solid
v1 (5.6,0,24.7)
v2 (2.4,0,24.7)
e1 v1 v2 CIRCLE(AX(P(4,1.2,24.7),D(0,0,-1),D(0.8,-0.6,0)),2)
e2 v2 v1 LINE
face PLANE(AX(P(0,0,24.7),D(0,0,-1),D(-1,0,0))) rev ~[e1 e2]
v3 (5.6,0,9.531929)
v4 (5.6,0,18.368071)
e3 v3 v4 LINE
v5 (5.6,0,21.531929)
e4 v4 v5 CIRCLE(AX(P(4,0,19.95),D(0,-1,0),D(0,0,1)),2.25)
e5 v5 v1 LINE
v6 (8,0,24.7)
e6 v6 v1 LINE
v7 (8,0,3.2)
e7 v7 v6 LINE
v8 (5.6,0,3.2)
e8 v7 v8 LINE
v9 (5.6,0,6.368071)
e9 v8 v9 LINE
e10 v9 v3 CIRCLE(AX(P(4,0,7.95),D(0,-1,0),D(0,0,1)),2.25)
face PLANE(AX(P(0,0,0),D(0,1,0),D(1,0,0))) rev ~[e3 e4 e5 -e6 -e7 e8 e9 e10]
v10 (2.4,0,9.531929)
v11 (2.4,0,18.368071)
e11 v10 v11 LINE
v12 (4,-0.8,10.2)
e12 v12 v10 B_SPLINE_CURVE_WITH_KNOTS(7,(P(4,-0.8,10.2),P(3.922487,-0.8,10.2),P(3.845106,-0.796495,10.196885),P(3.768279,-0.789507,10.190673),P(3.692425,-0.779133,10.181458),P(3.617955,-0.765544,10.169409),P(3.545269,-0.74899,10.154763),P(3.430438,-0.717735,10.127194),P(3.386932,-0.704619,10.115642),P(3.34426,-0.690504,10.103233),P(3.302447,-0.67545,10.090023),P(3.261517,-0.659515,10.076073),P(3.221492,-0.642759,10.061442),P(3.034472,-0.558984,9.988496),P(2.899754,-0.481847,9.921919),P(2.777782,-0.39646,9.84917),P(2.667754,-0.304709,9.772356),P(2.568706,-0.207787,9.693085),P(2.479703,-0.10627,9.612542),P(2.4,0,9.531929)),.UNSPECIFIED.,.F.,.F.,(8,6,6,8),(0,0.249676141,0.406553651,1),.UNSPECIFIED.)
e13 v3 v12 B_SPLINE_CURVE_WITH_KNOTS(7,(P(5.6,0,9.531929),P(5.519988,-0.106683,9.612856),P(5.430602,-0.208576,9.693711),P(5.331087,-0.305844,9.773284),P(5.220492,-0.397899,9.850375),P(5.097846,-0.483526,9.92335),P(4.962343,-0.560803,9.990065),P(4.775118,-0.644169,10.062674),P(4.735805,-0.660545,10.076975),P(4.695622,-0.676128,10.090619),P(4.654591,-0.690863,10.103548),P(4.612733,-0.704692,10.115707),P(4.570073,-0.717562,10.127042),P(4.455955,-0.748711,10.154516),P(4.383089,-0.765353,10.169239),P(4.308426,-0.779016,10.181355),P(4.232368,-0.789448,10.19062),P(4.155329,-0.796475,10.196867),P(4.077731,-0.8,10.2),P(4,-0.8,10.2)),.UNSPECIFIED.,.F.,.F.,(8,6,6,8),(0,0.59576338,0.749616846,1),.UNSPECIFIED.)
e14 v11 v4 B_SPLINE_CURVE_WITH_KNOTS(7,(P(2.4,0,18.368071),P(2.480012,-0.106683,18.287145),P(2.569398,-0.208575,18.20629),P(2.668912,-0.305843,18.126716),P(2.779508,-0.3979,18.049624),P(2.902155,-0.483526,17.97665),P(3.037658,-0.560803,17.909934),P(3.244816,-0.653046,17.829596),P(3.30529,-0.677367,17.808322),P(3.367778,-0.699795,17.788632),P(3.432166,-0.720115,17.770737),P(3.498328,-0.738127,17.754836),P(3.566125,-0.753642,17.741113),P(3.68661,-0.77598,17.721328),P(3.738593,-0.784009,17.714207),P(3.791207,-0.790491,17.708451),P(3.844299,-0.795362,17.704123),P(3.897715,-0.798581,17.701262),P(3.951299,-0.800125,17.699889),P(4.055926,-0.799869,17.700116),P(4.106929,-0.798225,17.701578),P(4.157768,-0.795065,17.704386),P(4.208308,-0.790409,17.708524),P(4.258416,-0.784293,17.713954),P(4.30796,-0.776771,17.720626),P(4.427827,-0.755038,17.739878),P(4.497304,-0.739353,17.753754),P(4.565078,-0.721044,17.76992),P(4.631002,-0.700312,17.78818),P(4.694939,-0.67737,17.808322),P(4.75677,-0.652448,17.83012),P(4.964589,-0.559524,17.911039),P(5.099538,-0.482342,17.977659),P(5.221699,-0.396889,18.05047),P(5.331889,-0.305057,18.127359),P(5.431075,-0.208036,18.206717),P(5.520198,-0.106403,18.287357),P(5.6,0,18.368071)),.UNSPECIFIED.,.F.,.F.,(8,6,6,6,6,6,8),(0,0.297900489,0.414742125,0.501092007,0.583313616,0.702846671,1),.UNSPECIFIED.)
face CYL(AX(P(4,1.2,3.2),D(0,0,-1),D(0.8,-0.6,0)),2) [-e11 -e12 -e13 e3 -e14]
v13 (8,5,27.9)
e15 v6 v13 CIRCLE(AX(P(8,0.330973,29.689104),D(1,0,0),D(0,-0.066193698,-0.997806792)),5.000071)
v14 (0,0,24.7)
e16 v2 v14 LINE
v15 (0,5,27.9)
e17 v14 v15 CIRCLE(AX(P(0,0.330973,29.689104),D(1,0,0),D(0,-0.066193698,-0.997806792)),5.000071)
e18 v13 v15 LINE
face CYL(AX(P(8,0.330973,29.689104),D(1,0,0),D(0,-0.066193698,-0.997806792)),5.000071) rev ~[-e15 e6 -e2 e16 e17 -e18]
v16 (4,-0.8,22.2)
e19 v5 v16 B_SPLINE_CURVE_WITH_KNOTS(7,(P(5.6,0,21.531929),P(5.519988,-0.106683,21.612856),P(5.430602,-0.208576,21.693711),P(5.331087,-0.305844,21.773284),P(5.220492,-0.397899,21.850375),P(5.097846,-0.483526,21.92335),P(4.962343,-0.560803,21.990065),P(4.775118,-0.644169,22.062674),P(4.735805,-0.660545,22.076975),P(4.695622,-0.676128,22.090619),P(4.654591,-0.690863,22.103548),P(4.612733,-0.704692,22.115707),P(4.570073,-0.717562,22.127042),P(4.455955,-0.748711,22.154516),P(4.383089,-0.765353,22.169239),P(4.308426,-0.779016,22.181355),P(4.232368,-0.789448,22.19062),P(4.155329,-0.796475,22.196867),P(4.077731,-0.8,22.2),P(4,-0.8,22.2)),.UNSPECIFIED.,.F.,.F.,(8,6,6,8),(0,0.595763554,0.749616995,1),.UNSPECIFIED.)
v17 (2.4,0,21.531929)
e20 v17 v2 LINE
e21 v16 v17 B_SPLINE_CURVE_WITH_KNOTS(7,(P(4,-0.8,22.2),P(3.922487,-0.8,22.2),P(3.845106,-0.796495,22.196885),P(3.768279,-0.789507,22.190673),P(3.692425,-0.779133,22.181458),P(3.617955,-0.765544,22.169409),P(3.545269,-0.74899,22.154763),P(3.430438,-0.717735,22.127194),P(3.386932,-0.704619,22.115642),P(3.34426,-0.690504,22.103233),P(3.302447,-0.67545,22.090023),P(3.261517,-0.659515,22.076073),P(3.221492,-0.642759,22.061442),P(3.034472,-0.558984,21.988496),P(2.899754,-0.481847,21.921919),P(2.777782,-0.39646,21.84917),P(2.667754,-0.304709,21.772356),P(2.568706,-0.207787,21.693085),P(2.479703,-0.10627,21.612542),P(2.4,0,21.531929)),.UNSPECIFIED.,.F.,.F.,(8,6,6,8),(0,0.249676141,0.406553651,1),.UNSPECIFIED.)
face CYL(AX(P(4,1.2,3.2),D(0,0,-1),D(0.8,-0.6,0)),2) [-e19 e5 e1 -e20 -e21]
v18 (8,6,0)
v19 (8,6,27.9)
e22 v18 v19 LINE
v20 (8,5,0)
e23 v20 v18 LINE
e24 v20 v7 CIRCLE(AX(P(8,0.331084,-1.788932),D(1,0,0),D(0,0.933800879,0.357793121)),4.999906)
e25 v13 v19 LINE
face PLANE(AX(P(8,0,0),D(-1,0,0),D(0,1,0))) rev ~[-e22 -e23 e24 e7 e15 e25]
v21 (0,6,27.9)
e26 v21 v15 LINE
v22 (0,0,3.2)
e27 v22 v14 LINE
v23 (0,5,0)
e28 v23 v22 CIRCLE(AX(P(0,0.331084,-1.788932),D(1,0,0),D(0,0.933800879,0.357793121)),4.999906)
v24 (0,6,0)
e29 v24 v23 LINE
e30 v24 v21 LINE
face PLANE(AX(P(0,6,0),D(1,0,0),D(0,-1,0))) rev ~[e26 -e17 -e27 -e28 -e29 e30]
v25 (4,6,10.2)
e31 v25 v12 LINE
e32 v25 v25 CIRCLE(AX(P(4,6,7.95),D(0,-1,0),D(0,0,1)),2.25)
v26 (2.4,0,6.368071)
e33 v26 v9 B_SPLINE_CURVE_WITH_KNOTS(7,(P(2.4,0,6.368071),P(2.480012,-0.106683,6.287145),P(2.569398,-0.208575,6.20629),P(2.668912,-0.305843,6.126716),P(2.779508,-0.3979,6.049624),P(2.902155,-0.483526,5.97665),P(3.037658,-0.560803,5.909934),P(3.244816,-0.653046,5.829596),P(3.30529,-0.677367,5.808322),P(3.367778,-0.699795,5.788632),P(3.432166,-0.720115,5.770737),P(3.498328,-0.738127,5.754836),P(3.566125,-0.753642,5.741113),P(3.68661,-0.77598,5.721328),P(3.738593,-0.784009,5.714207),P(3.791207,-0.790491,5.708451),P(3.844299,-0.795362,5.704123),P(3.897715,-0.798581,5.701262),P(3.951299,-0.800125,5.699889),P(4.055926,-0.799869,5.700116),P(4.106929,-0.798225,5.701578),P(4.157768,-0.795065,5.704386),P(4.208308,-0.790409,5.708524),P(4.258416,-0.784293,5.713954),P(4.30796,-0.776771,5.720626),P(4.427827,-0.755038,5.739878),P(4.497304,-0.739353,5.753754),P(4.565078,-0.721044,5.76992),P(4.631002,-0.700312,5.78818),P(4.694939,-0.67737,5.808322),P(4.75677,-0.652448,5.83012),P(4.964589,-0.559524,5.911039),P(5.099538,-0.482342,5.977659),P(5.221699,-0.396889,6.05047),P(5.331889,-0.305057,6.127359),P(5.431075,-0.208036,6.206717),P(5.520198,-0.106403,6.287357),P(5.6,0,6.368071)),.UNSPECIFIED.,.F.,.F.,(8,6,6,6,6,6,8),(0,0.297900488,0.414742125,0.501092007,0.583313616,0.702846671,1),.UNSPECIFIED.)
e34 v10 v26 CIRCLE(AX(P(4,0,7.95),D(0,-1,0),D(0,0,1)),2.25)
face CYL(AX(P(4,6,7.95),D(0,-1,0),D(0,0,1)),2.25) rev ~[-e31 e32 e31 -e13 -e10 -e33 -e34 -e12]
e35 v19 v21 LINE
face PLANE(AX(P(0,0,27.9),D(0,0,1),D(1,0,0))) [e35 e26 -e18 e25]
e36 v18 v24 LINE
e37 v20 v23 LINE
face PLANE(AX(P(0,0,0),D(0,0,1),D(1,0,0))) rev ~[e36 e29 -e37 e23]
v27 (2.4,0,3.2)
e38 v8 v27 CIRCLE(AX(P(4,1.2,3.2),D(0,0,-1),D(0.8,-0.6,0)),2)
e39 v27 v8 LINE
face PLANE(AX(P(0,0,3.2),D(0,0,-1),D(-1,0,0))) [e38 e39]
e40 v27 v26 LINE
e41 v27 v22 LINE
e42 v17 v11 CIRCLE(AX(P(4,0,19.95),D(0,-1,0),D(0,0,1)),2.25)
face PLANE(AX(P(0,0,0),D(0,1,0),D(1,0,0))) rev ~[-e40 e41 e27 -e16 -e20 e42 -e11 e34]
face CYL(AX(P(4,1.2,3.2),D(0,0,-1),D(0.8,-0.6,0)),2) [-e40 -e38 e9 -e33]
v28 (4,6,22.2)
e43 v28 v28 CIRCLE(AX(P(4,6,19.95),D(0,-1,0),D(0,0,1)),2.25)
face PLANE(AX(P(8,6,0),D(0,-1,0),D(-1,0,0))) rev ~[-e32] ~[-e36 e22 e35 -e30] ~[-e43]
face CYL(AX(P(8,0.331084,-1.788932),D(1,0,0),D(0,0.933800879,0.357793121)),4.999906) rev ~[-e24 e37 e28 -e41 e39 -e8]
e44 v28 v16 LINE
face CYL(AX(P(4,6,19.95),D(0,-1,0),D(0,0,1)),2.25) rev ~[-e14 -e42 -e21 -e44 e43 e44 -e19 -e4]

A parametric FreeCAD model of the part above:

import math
import FreeCAD as App
import Part
import Sketcher

V = App.Vector
Q = App.Units.Quantity

doc = App.newDocument("Part")
params = doc.addObject("Spreadsheet::Sheet", "Params")
for row, (alias, value) in enumerate([
    ("sketch1_width", "8 mm"),
    ("sketch1_height", "6 mm"),
    ("pad1_length", "27.9 mm"),
    ("sketch2_radius", "5 mm"),
    ("sketch2_width", "5 mm"),
    ("sketch2_height", "3.2 mm"),
    ("sketch3_radius", "2 mm"),
    ("pad2_length", "21.5 mm"),
    ("sketch4_diameter", "4.5 mm"),
    ("hole_diameter", "4.5 mm"),
], start=1):
    params.set(f"A{row}", alias)
    params.set(f"B{row}", "=" + value)
    params.setAlias(f"B{row}", alias)

body = doc.addObject("PartDesign::Body", "Body")

# Sketch on XY plane
sketch1 = doc.addObject("Sketcher::SketchObject", "Sketch")
body.addObject(sketch1)
sketch1.AttachmentSupport = (doc.XY_Plane, [""])
sketch1.MapMode = "FlatFace"
sketch1.addGeometry([
    Part.LineSegment(V(0, 6, 0), V(0, 0, 0)),
    Part.LineSegment(V(0, 0, 0), V(8, 0, 0)),
    Part.LineSegment(V(8, 0, 0), V(8, 6, 0)),
    Part.LineSegment(V(8, 6, 0), V(0, 6, 0)),
], False)
sketch1.addConstraint([
    Sketcher.Constraint("Coincident", 0, 2, 1, 1),
    Sketcher.Constraint("Coincident", 1, 2, 2, 1),
    Sketcher.Constraint("Coincident", 2, 2, 3, 1),
    Sketcher.Constraint("Coincident", 3, 2, 0, 1),
    Sketcher.Constraint("Vertical", 0),
    Sketcher.Constraint("Horizontal", 1),
    Sketcher.Constraint("Vertical", 2),
    Sketcher.Constraint("Horizontal", 3),
    Sketcher.Constraint("Coincident", 0, 2, -1, 1),
    Sketcher.Constraint("DistanceX", 1, 1, 1, 2, Q("8 mm")),
    Sketcher.Constraint("DistanceY", 0, 2, 0, 1, Q("6 mm")),
])
sketch1.setExpression("Constraints[9]", "Params.sketch1_width")
sketch1.setExpression("Constraints[10]", "Params.sketch1_height")
pad1 = doc.addObject("PartDesign::Pad", "Pad")
body.addObject(pad1)
pad1.Profile = sketch1
pad1.setExpression("Length", "Params.pad1_length")

# Sketch on YZ plane
sketch2 = doc.addObject("Sketcher::SketchObject", "Sketch001")
body.addObject(sketch2)
sketch2.AttachmentSupport = (doc.YZ_Plane, [""])
sketch2.MapMode = "FlatFace"
sketch2.AttachmentOffset = App.Placement(V(0, 0, 8), App.Rotation())
sketch2.addGeometry([
    Part.LineSegment(V(0, 3.2, 0), V(0, 0, 0)),  # 0
    Part.LineSegment(V(0, 0, 0), V(5, 0, 0)),  # 1
    Part.ArcOfCircle(Part.Circle(V(0.331, -1.789, 0), V(0, 0, 1), 5.000008), math.radians(20.965112), math.radians(93.795781)),  # 2
    Part.LineSegment(V(0, 27.9, 0), V(0, 24.7, 0)),  # 3
    Part.ArcOfCircle(Part.Circle(V(0.331, 29.689, 0), V(0, 0, 1), 4.999968), math.radians(-93.795781), math.radians(-20.965112)),  # 4
    Part.LineSegment(V(5, 27.9, 0), V(0, 27.9, 0)),  # 5
], False)
sketch2.addConstraint([
    Sketcher.Constraint("Coincident", 0, 2, 1, 1),
    Sketcher.Constraint("Coincident", 1, 2, 2, 1),
    Sketcher.Constraint("Coincident", 2, 2, 0, 1),
    Sketcher.Constraint("Coincident", 3, 2, 4, 1),
    Sketcher.Constraint("Coincident", 4, 2, 5, 1),
    Sketcher.Constraint("Coincident", 5, 2, 3, 1),
    Sketcher.Constraint("Vertical", 0),
    Sketcher.Constraint("Horizontal", 1),
    Sketcher.Constraint("Vertical", 3),
    Sketcher.Constraint("Horizontal", 5),
    Sketcher.Constraint("Coincident", 0, 2, -1, 1),
    Sketcher.Constraint("Equal", 2, 4),
    Sketcher.Constraint("PointOnObject", 3, 2, -2),
    Sketcher.Constraint("Vertical", 2, 3, 4, 3),
    Sketcher.Constraint("Vertical", 1, 2, 4, 2),
    Sketcher.Constraint("Radius", 2, Q("5 mm")),
    Sketcher.Constraint("DistanceX", 1, 1, 1, 2, Q("5 mm")),
    Sketcher.Constraint("DistanceY", 0, 2, 0, 1, Q("3.2 mm")),
    Sketcher.Constraint("DistanceY", -1, 1, 3, 2, Q("24.7 mm")),
])
sketch2.setExpression("Constraints[15]", "Params.sketch2_radius")
sketch2.setExpression("Constraints[16]", "Params.sketch2_width")
sketch2.setExpression("Constraints[17]", "Params.sketch2_height")
pocket1 = doc.addObject("PartDesign::Pocket", "Pocket")
body.addObject(pocket1)
pocket1.Profile = sketch2
pocket1.Type = "UpToFirst"

# Sketch on XY plane
sketch3 = doc.addObject("Sketcher::SketchObject", "Sketch002")
body.addObject(sketch3)
sketch3.AttachmentSupport = (doc.XY_Plane, [""])
sketch3.MapMode = "FlatFace"
sketch3.AttachmentOffset = App.Placement(V(0, 0, 3.2), App.Rotation())
sketch3.addGeometry([
    Part.ArcOfCircle(Part.Circle(V(4, 1.2, 0), V(0, 0, 1), 2), math.radians(-143.130102), math.radians(-36.869898)),
    Part.LineSegment(V(2.4, 0, 0), V(5.6, 0, 0)),
], False)
sketch3.addConstraint([
    Sketcher.Constraint("Coincident", 0, 1, 1, 1),
    Sketcher.Constraint("Coincident", 1, 2, 0, 2),
    Sketcher.Constraint("Horizontal", 1),
    Sketcher.Constraint("PointOnObject", 0, 1, -1),
    Sketcher.Constraint("Radius", 0, Q("2 mm")),
    Sketcher.Constraint("DistanceX", -1, 1, 0, 3, Q("4 mm")),
    Sketcher.Constraint("DistanceY", -1, 1, 0, 3, Q("1.2 mm")),
])
sketch3.setExpression("Constraints[4]", "Params.sketch3_radius")
pad2 = doc.addObject("PartDesign::Pad", "Pad001")
body.addObject(pad2)
pad2.Profile = sketch3
pad2.setExpression("Length", "Params.pad2_length")

# Sketch on XZ plane
sketch4 = doc.addObject("Sketcher::SketchObject", "Sketch003")
body.addObject(sketch4)
sketch4.AttachmentSupport = (doc.XZ_Plane, [""])
sketch4.MapMode = "FlatFace"
sketch4.AttachmentOffset = App.Placement(V(0, 0, -6), App.Rotation())
sketch4.addGeometry([
    Part.Circle(V(4, 7.95, 0), V(0, 0, 1), 2.25),
    Part.Circle(V(4, 19.95, 0), V(0, 0, 1), 2.25),
], False)
sketch4.addConstraint([
    Sketcher.Constraint("Equal", 0, 1),
    Sketcher.Constraint("Vertical", 0, 3, 1, 3),
    Sketcher.Constraint("Diameter", 0, Q("4.5 mm")),
    Sketcher.Constraint("DistanceX", -1, 1, 0, 3, Q("4 mm")),
    Sketcher.Constraint("DistanceY", 0, 3, 1, 3, Q("12 mm")),
    Sketcher.Constraint("DistanceY", -1, 1, 0, 3, Q("7.95 mm")),
])
sketch4.setExpression("Constraints[2]", "Params.sketch4_diameter")
doc.recompute()
hole = doc.addObject("PartDesign::Hole", "Hole")
body.addObject(hole)
hole.Profile = sketch4
hole.ThreadType = "None"
hole.setExpression("Diameter", "Params.hole_diameter")
hole.DepthType = "ThroughAll"
hole.Reversed = True

doc.recompute()
